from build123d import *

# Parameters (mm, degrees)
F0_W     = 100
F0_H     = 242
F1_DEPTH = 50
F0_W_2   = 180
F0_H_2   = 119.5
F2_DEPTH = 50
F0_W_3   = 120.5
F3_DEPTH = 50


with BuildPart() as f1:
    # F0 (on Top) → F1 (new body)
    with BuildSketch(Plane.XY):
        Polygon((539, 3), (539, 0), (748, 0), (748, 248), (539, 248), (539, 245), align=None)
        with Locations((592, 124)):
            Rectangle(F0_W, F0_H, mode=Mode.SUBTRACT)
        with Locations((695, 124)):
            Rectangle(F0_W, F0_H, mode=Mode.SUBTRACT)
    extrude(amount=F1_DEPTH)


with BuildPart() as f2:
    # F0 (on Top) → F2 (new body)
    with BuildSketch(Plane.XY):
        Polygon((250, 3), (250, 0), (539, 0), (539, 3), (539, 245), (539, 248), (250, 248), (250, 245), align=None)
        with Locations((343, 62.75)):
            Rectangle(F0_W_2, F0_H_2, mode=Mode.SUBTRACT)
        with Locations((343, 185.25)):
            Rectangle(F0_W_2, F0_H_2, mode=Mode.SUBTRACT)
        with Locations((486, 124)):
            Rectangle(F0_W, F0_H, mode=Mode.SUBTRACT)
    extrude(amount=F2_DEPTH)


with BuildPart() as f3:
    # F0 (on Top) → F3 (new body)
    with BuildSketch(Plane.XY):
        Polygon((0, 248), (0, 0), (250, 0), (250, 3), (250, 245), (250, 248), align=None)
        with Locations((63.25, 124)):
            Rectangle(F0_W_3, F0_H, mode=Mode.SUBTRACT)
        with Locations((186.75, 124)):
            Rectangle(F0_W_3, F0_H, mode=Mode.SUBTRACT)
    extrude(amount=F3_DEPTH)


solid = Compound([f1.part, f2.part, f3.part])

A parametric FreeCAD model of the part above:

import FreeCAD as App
import Part
import Sketcher


def add_polygon(sketch, points):
    """Adds a closed chain of lines whose ends are joined by coincident constraints."""
    first, n = sketch.GeometryCount, len(points)
    for a, b in zip(points, points[1:] + points[:1]):
        sketch.addGeometry(Part.LineSegment(App.Vector(*a, 0), App.Vector(*b, 0)), False)
    for i in range(n):
        sketch.addConstraint(Sketcher.Constraint("Coincident", first + i, 2, first + (i + 1) % n, 1))

doc = App.newDocument("Part")
body = doc.addObject("PartDesign::Body", "Body")

sketch1 = body.newObject("Sketcher::SketchObject", "Sketch")
sketch1.AttachmentSupport = (doc.getObject("XY_Plane"), [""])
sketch1.MapMode = "FlatFace"
add_polygon(sketch1, [(539, 0), (748, 0), (748, 248), (539, 248)])
add_polygon(sketch1, [(642, 3), (542, 3), (542, 245), (642, 245)])
add_polygon(sketch1, [(745, 3), (645, 3), (645, 245), (745, 245)])
sketch1.addConstraint(Sketcher.Constraint("Horizontal", 0))
sketch1.addConstraint(Sketcher.Constraint("Vertical", 1))
sketch1.addConstraint(Sketcher.Constraint("Horizontal", 2))
sketch1.addConstraint(Sketcher.Constraint("Vertical", 3))
sketch1.addConstraint(Sketcher.Constraint("Horizontal", 4))
sketch1.addConstraint(Sketcher.Constraint("Vertical", 5))
sketch1.addConstraint(Sketcher.Constraint("Horizontal", 6))
sketch1.addConstraint(Sketcher.Constraint("Vertical", 7))
sketch1.addConstraint(Sketcher.Constraint("Horizontal", 8))
sketch1.addConstraint(Sketcher.Constraint("Vertical", 9))
sketch1.addConstraint(Sketcher.Constraint("Horizontal", 10))
sketch1.addConstraint(Sketcher.Constraint("Vertical", 11))
sketch1.addConstraint(Sketcher.Constraint("PointOnObject", 0, 2, -1))
sketch1.addConstraint(Sketcher.Constraint("Horizontal", 7, 2, 8, 2))
sketch1.addConstraint(Sketcher.Constraint("Horizontal", 6, 2, 9, 2))
sketch1.addConstraint(Sketcher.Constraint("Equal", 6, 8))
sketch1.addConstraint(Sketcher.Constraint("DistanceX", 0, 1, 0, 2, 209.0))
sketch1.addConstraint(Sketcher.Constraint("DistanceX", 4, 2, 4, 1, 100.0))
sketch1.addConstraint(Sketcher.Constraint("DistanceY", 1, 1, 1, 2, 248.0))
sketch1.addConstraint(Sketcher.Constraint("DistanceY", 5, 1, 5, 2, 242.0))
sketch1.addConstraint(Sketcher.Constraint("DistanceX", -1, 1, 0, 2, 748.0))
sketch1.addConstraint(Sketcher.Constraint("DistanceX", -1, 1, 4, 2, 542.0))
sketch1.addConstraint(Sketcher.Constraint("DistanceY", -1, 1, 4, 2, 3.0))
sketch1.addConstraint(Sketcher.Constraint("DistanceX", -1, 1, 8, 2, 645.0))
pad1 = body.newObject("PartDesign::Pad", "Pad")
pad1.Profile = sketch1
pad1.Length = 50
body2 = doc.addObject("PartDesign::Body", "Body001")

sketch2 = body2.newObject("Sketcher::SketchObject", "Sketch001")
sketch2.AttachmentSupport = (doc.getObject("XY_Plane001"), [""])
sketch2.MapMode = "FlatFace"
add_polygon(sketch2, [(250, 0), (539, 0), (539, 248), (250, 248)])
add_polygon(sketch2, [(433, 3), (253, 3), (253, 122), (433, 122)])
add_polygon(sketch2, [(433, 126), (253, 126), (253, 245), (433, 245)])
add_polygon(sketch2, [(536, 3), (436, 3), (436, 245), (536, 245)])
sketch2.addConstraint(Sketcher.Constraint("Horizontal", 0))
sketch2.addConstraint(Sketcher.Constraint("Vertical", 1))
sketch2.addConstraint(Sketcher.Constraint("Horizontal", 2))
sketch2.addConstraint(Sketcher.Constraint("Vertical", 3))
sketch2.addConstraint(Sketcher.Constraint("Horizontal", 4))
sketch2.addConstraint(Sketcher.Constraint("Vertical", 5))
sketch2.addConstraint(Sketcher.Constraint("Horizontal", 6))
sketch2.addConstraint(Sketcher.Constraint("Vertical", 7))
sketch2.addConstraint(Sketcher.Constraint("Horizontal", 8))
sketch2.addConstraint(Sketcher.Constraint("Vertical", 9))
sketch2.addConstraint(Sketcher.Constraint("Horizontal", 10))
sketch2.addConstraint(Sketcher.Constraint("Vertical", 11))
sketch2.addConstraint(Sketcher.Constraint("Horizontal", 12))
sketch2.addConstraint(Sketcher.Constraint("Vertical", 13))
sketch2.addConstraint(Sketcher.Constraint("Horizontal", 14))
sketch2.addConstraint(Sketcher.Constraint("Vertical", 15))
sketch2.addConstraint(Sketcher.Constraint("PointOnObject", 0, 2, -1))
sketch2.addConstraint(Sketcher.Constraint("Horizontal", 7, 2, 12, 2))
sketch2.addConstraint(Sketcher.Constraint("Horizontal", 10, 2, 13, 2))
sketch2.addConstraint(Sketcher.Constraint("Vertical", 5, 2, 8, 2))
sketch2.addConstraint(Sketcher.Constraint("Vertical", 7, 2, 10, 2))
sketch2.addConstraint(Sketcher.Constraint("Equal", 7, 9))
sketch2.addConstraint(Sketcher.Constraint("DistanceX", 0, 1, 0, 2, 289.0))
sketch2.addConstraint(Sketcher.Constraint("DistanceX", 4, 2, 4, 1, 180.0))
sketch2.addConstraint(Sketcher.Constraint("DistanceX", 12, 2, 12, 1, 100.0))
sketch2.addConstraint(Sketcher.Constraint("DistanceY", 1, 1, 1, 2, 248.0))
sketch2.addConstraint(Sketcher.Constraint("DistanceY", 13, 1, 13, 2, 242.0))
sketch2.addConstraint(Sketcher.Constraint("DistanceY", 5, 1, 5, 2, 119.5))
sketch2.addConstraint(Sketcher.Constraint("DistanceX", -1, 1, 0, 2, 539.0))
sketch2.addConstraint(Sketcher.Constraint("DistanceX", -1, 1, 4, 2, 253.0))
sketch2.addConstraint(Sketcher.Constraint("DistanceY", -1, 1, 4, 2, 3.0))
sketch2.addConstraint(Sketcher.Constraint("DistanceX", -1, 1, 12, 2, 436.0))
pad2 = body2.newObject("PartDesign::Pad", "Pad001")
pad2.Profile = sketch2
pad2.Length = 50
body3 = doc.addObject("PartDesign::Body", "Body002")

sketch3 = body3.newObject("Sketcher::SketchObject", "Sketch002")
sketch3.AttachmentSupport = (doc.getObject("XY_Plane002"), [""])
sketch3.MapMode = "FlatFace"
add_polygon(sketch3, [(0, 248), (0, 0), (250, 0), (250, 248)])
add_polygon(sketch3, [(124, 3), (3, 3), (3, 245), (124, 245)])
add_polygon(sketch3, [(247, 3), (126, 3), (126, 245), (247, 245)])
sketch3.addConstraint(Sketcher.Constraint("Vertical", 0))
sketch3.addConstraint(Sketcher.Constraint("Horizontal", 1))
sketch3.addConstraint(Sketcher.Constraint("Vertical", 2))
sketch3.addConstraint(Sketcher.Constraint("Horizontal", 3))
sketch3.addConstraint(Sketcher.Constraint("Horizontal", 4))
sketch3.addConstraint(Sketcher.Constraint("Vertical", 5))
sketch3.addConstraint(Sketcher.Constraint("Horizontal", 6))
sketch3.addConstraint(Sketcher.Constraint("Vertical", 7))
sketch3.addConstraint(Sketcher.Constraint("Horizontal", 8))
sketch3.addConstraint(Sketcher.Constraint("Vertical", 9))
sketch3.addConstraint(Sketcher.Constraint("Horizontal", 10))
sketch3.addConstraint(Sketcher.Constraint("Vertical", 11))
sketch3.addConstraint(Sketcher.Constraint("Coincident", 0, 2, -1, 1))
sketch3.addConstraint(Sketcher.Constraint("Horizontal", 7, 2, 8, 2))
sketch3.addConstraint(Sketcher.Constraint("Horizontal", 6, 2, 9, 2))
sketch3.addConstraint(Sketcher.Constraint("Equal", 6, 8))
sketch3.addConstraint(Sketcher.Constraint("DistanceX", 1, 1, 1, 2, 250.0))
sketch3.addConstraint(Sketcher.Constraint("DistanceY", 0, 2, 0, 1, 248.0))
sketch3.addConstraint(Sketcher.Constraint("DistanceY", 5, 1, 5, 2, 242.0))
sketch3.addConstraint(Sketcher.Constraint("DistanceX", 4, 2, 4, 1, 120.5))
sketch3.addConstraint(Sketcher.Constraint("DistanceX", -1, 1, 4, 2, 3.0))
sketch3.addConstraint(Sketcher.Constraint("DistanceY", -1, 1, 4, 2, 3.0))
sketch3.addConstraint(Sketcher.Constraint("DistanceX", -1, 1, 10, 2, 247.0))
pad3 = body3.newObject("PartDesign::Pad", "Pad002")
pad3.Profile = sketch3
pad3.Length = 50

doc.recompute()
